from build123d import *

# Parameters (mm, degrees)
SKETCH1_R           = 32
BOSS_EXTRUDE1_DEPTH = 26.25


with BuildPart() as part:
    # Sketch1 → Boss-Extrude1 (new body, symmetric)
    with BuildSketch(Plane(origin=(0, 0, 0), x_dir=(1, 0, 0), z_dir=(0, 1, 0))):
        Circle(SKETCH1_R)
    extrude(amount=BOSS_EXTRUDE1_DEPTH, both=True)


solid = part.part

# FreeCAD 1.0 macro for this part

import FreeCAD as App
import Part
import Sketcher

doc = App.newDocument("Part")
body = doc.addObject("PartDesign::Body", "Body")

sketch1 = body.newObject("Sketcher::SketchObject", "Sketch")
sketch1.AttachmentSupport = (doc.getObject("XZ_Plane"), [""])
sketch1.MapMode = "FlatFace"
sketch1.addGeometry(Part.Circle(App.Vector(0, 0, 0), App.Vector(0, 0, 1), 32), False)
sketch1.addConstraint([
    Sketcher.Constraint("Coincident", 0, 3, -1, 1),
    Sketcher.Constraint("Diameter", 0, 64.0),
])
pad1 = body.newObject("PartDesign::Pad", "Pad")
pad1.Profile = sketch1
pad1.Length = 52.5
pad1.Midplane = True

doc.recompute()
